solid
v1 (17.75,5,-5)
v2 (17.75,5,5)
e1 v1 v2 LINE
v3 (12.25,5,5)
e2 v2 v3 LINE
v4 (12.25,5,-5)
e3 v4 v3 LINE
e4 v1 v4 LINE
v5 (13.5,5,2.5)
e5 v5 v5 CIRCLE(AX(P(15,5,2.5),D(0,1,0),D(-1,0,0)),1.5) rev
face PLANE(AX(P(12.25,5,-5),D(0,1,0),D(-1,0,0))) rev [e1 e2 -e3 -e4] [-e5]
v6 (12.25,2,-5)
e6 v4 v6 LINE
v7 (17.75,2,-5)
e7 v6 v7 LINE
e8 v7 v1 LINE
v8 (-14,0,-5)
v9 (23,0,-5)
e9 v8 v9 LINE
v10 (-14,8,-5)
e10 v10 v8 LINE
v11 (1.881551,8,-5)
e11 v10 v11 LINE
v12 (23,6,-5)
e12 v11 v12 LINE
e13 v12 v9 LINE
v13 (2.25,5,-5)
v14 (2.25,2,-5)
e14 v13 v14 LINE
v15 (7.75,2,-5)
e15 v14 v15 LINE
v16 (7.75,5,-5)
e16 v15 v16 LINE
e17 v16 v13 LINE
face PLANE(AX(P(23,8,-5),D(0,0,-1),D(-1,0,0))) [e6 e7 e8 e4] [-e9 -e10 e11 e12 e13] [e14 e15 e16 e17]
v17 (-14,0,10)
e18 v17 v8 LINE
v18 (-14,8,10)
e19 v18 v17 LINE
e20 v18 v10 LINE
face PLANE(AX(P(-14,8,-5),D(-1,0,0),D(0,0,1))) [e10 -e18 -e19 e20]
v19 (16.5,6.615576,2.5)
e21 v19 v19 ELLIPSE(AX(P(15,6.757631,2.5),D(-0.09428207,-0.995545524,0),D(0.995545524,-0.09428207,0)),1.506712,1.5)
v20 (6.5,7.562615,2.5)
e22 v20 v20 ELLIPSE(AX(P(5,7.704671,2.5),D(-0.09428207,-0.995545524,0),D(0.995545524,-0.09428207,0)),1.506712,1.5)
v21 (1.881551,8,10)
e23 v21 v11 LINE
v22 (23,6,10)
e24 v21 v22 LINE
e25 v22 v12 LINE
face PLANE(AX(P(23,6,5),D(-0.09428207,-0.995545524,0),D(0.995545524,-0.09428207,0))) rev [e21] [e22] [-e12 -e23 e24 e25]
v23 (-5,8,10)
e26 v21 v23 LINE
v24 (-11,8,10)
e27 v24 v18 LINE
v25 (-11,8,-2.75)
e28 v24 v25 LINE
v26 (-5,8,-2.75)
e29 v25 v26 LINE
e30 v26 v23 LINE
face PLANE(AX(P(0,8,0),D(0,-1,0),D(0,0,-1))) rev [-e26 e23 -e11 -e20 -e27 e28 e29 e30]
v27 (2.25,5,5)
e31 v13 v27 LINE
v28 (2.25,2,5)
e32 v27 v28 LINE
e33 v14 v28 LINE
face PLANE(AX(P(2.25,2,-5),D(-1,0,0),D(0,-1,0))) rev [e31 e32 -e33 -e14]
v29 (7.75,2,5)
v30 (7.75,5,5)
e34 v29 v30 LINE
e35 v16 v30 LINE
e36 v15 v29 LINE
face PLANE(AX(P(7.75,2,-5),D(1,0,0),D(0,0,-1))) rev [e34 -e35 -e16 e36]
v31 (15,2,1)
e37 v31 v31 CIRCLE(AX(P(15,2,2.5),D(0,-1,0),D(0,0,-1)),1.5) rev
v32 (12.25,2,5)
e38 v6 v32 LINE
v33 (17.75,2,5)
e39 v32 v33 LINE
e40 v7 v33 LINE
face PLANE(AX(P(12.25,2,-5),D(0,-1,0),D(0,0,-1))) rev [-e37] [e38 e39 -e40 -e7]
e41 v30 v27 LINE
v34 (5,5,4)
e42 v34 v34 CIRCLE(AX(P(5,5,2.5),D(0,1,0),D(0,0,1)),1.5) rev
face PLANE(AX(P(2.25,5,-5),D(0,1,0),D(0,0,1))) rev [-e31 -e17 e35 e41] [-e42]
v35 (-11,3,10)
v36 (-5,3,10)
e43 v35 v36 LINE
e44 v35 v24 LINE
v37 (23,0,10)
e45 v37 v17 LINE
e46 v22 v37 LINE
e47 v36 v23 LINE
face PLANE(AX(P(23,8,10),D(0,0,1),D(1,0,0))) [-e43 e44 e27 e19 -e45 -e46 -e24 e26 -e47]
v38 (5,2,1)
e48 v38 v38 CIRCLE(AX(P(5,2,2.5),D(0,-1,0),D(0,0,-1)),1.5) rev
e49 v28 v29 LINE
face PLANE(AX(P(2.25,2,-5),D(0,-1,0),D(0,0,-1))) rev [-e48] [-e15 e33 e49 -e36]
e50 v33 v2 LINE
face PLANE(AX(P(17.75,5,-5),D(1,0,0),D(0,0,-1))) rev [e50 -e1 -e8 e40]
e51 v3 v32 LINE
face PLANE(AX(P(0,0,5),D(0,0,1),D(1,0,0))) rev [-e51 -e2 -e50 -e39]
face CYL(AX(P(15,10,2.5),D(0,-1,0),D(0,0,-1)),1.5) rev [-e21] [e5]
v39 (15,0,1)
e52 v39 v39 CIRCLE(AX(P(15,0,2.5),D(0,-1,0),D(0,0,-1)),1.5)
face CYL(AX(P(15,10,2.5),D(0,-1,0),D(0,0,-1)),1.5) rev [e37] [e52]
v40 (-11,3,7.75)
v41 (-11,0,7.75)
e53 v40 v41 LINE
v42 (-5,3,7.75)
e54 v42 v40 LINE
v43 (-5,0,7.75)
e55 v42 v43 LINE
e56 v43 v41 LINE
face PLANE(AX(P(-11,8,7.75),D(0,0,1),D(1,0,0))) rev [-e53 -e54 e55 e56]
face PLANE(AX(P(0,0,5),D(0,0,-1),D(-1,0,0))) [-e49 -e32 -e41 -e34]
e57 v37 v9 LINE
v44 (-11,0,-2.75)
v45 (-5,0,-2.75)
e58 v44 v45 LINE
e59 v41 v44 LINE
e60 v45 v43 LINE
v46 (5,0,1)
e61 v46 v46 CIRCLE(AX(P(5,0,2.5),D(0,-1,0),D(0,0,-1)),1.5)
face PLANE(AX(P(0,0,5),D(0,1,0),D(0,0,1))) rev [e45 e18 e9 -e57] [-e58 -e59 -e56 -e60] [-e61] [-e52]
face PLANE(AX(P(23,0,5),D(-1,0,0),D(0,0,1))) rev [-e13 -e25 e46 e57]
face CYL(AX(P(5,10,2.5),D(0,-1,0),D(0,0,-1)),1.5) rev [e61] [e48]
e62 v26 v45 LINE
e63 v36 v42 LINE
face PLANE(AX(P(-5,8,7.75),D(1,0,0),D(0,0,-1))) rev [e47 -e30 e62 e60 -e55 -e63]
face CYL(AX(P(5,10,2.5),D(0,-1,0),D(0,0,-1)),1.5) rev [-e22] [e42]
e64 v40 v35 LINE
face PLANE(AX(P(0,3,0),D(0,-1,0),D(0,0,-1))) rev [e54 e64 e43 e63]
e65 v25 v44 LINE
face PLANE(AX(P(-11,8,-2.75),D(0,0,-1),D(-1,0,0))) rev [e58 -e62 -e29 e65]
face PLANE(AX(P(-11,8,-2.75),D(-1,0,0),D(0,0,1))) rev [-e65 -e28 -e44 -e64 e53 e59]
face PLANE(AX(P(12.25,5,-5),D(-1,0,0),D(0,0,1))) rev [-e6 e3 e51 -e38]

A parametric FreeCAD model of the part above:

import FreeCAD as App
import Part
import Sketcher

V = App.Vector
Q = App.Units.Quantity

doc = App.newDocument("Part")
body = doc.addObject("PartDesign::Body", "Body")

sketch1 = doc.addObject("Sketcher::SketchObject", "Sketch")
body.addObject(sketch1)
sketch1.AttachmentSupport = (doc.XY_Plane, [""])
sketch1.MapMode = "FlatFace"
sketch1.addGeometry(Part.LineSegment(V(0, 8.17819, 0), V(0, 0, 0)), False)
sketch1.addGeometry(Part.LineSegment(V(0, 0, 0), V(23, 0, 0)), False)
sketch1.addGeometry(Part.LineSegment(V(23, 0, 0), V(23, 6, 0)), False)
sketch1.addGeometry(Part.LineSegment(V(23, 6, 0), V(0, 8.17819, 0)), False)
sketch1.addConstraint(Sketcher.Constraint("Coincident", 0, 2, 1, 1))
sketch1.addConstraint(Sketcher.Constraint("Coincident", 1, 2, 2, 1))
sketch1.addConstraint(Sketcher.Constraint("Coincident", 2, 2, 3, 1))
sketch1.addConstraint(Sketcher.Constraint("Coincident", 3, 2, 0, 1))
sketch1.addConstraint(Sketcher.Constraint("Vertical", 0))
sketch1.addConstraint(Sketcher.Constraint("Horizontal", 1))
sketch1.addConstraint(Sketcher.Constraint("Vertical", 2))
sketch1.addConstraint(Sketcher.Constraint("Coincident", 0, 2, -1, 1))
sketch1.addConstraint(Sketcher.Constraint("DistanceX", 1, 1, 1, 2, 23.0))
sketch1.addConstraint(Sketcher.Constraint("DistanceY", 2, 1, 2, 2, 6.0))
sketch1.addConstraint(Sketcher.Constraint("Angle", 3, Q("174.59 deg")))
pad1 = doc.addObject("PartDesign::Pad", "Pad")
body.addObject(pad1)
pad1.Profile = sketch1
pad1.Length = 5

sketch2 = doc.addObject("Sketcher::SketchObject", "Sketch001")
body.addObject(sketch2)
sketch2.AttachmentSupport = (doc.XZ_Plane, [""])
sketch2.MapMode = "FlatFace"
sketch2.addGeometry(Part.Circle(V(15, 2.5, 0), V(0, 0, 1), 1.5), False)
sketch2.addGeometry(Part.Circle(V(5, 2.5, 0), V(0, 0, 1), 1.5), False)
sketch2.addConstraint(Sketcher.Constraint("Equal", 0, 1))
sketch2.addConstraint(Sketcher.Constraint("Horizontal", 0, 3, 1, 3))
sketch2.addConstraint(Sketcher.Constraint("Diameter", 0, 3.0))
sketch2.addConstraint(Sketcher.Constraint("DistanceX", -1, 1, 0, 3, 15.0))
sketch2.addConstraint(Sketcher.Constraint("DistanceX", -1, 1, 1, 3, 5.0))
sketch2.addConstraint(Sketcher.Constraint("DistanceY", -1, 1, 0, 3, 2.5))
pocket1 = doc.addObject("PartDesign::Pocket", "Pocket")
body.addObject(pocket1)
pocket1.Profile = sketch2
pocket1.Length = 10

sketch3 = doc.addObject("Sketcher::SketchObject", "Sketch002")
body.addObject(sketch3)
sketch3.AttachmentSupport = (doc.XZ_Plane, [""])
sketch3.MapMode = "FlatFace"
sketch3.addGeometry(Part.LineSegment(V(0, 5, 0), V(23, 5, 0)), False)
sketch3.addGeometry(Part.LineSegment(V(23, 5, 0), V(23, 10, 0)), False)
sketch3.addGeometry(Part.LineSegment(V(23, 10, 0), V(-14, 10, 0)), False)
sketch3.addGeometry(Part.LineSegment(V(-14, 10, 0), V(-14, -5, 0)), False)
sketch3.addGeometry(Part.LineSegment(V(-14, -5, 0), V(23, -5, 0)), False)
sketch3.addGeometry(Part.LineSegment(V(23, -5, 0), V(23, 0, 0)), False)
sketch3.addGeometry(Part.LineSegment(V(23, 0, 0), V(0, 0, 0)), False)
sketch3.addGeometry(Part.LineSegment(V(0, 0, 0), V(0, 5, 0)), False)
sketch3.addGeometry(Part.LineSegment(V(-11, 7.75, 0), V(-5, 7.75, 0)), False)
sketch3.addGeometry(Part.LineSegment(V(-5, 7.75, 0), V(-5, -2.75, 0)), False)
sketch3.addGeometry(Part.LineSegment(V(-5, -2.75, 0), V(-11, -2.75, 0)), False)
sketch3.addGeometry(Part.LineSegment(V(-11, -2.75, 0), V(-11, 7.75, 0)), False)
sketch3.addConstraint(Sketcher.Constraint("Coincident", 0, 2, 1, 1))
sketch3.addConstraint(Sketcher.Constraint("Coincident", 1, 2, 2, 1))
sketch3.addConstraint(Sketcher.Constraint("Coincident", 2, 2, 3, 1))
sketch3.addConstraint(Sketcher.Constraint("Coincident", 3, 2, 4, 1))
sketch3.addConstraint(Sketcher.Constraint("Coincident", 4, 2, 5, 1))
sketch3.addConstraint(Sketcher.Constraint("Coincident", 5, 2, 6, 1))
sketch3.addConstraint(Sketcher.Constraint("Coincident", 6, 2, 7, 1))
sketch3.addConstraint(Sketcher.Constraint("Coincident", 7, 2, 0, 1))
sketch3.addConstraint(Sketcher.Constraint("Coincident", 8, 2, 9, 1))
sketch3.addConstraint(Sketcher.Constraint("Coincident", 9, 2, 10, 1))
sketch3.addConstraint(Sketcher.Constraint("Coincident", 10, 2, 11, 1))
sketch3.addConstraint(Sketcher.Constraint("Coincident", 11, 2, 8, 1))
sketch3.addConstraint(Sketcher.Constraint("Horizontal", 0))
sketch3.addConstraint(Sketcher.Constraint("Vertical", 1))
sketch3.addConstraint(Sketcher.Constraint("Horizontal", 2))
sketch3.addConstraint(Sketcher.Constraint("Vertical", 3))
sketch3.addConstraint(Sketcher.Constraint("Horizontal", 4))
sketch3.addConstraint(Sketcher.Constraint("Vertical", 5))
sketch3.addConstraint(Sketcher.Constraint("Horizontal", 6))
sketch3.addConstraint(Sketcher.Constraint("Vertical", 7))
sketch3.addConstraint(Sketcher.Constraint("Horizontal", 8))
sketch3.addConstraint(Sketcher.Constraint("Vertical", 9))
sketch3.addConstraint(Sketcher.Constraint("Horizontal", 10))
sketch3.addConstraint(Sketcher.Constraint("Vertical", 11))
sketch3.addConstraint(Sketcher.Constraint("Coincident", 6, 2, -1, 1))
sketch3.addConstraint(Sketcher.Constraint("Symmetric", 0, 2, 4, 2, -1))
sketch3.addConstraint(Sketcher.Constraint("Equal", 1, 5))
sketch3.addConstraint(Sketcher.Constraint("DistanceX", 0, 1, 0, 2, 23.0))
sketch3.addConstraint(Sketcher.Constraint("DistanceX", 2, 2, 2, 1, 37.0))
sketch3.addConstraint(Sketcher.Constraint("DistanceX", 8, 1, 8, 2, 6.0))
sketch3.addConstraint(Sketcher.Constraint("DistanceY", 1, 1, 1, 2, 5.0))
sketch3.addConstraint(Sketcher.Constraint("DistanceY", 9, 2, 9, 1, 10.5))
sketch3.addConstraint(Sketcher.Constraint("DistanceX", 8, 2, -1, 1, 5.0))
sketch3.addConstraint(Sketcher.Constraint("DistanceY", -1, 1, 8, 2, 7.75))
pad2 = doc.addObject("PartDesign::Pad", "Pad001")
body.addObject(pad2)
pad2.Profile = sketch3
pad2.Length = 8
pad2.Reversed = True

sketch4 = doc.addObject("Sketcher::SketchObject", "Sketch003")
body.addObject(sketch4)
sketch4.AttachmentSupport = (doc.XY_Plane, [""])
sketch4.MapMode = "FlatFace"
sketch4.AttachmentOffset = App.Placement(V(0, 0, 5), App.Rotation())
sketch4.addGeometry(Part.LineSegment(V(2.25, 5, 0), V(2.25, 2, 0)), False)
sketch4.addGeometry(Part.LineSegment(V(2.25, 2, 0), V(7.75, 2, 0)), False)
sketch4.addGeometry(Part.LineSegment(V(7.75, 2, 0), V(7.75, 5, 0)), False)
sketch4.addGeometry(Part.LineSegment(V(7.75, 5, 0), V(2.25, 5, 0)), False)
sketch4.addGeometry(Part.LineSegment(V(12.25, 5, 0), V(12.25, 2, 0)), False)
sketch4.addGeometry(Part.LineSegment(V(12.25, 2, 0), V(17.75, 2, 0)), False)
sketch4.addGeometry(Part.LineSegment(V(17.75, 2, 0), V(17.75, 5, 0)), False)
sketch4.addGeometry(Part.LineSegment(V(17.75, 5, 0), V(12.25, 5, 0)), False)
sketch4.addConstraint(Sketcher.Constraint("Coincident", 0, 2, 1, 1))
sketch4.addConstraint(Sketcher.Constraint("Coincident", 1, 2, 2, 1))
sketch4.addConstraint(Sketcher.Constraint("Coincident", 2, 2, 3, 1))
sketch4.addConstraint(Sketcher.Constraint("Coincident", 3, 2, 0, 1))
sketch4.addConstraint(Sketcher.Constraint("Coincident", 4, 2, 5, 1))
sketch4.addConstraint(Sketcher.Constraint("Coincident", 5, 2, 6, 1))
sketch4.addConstraint(Sketcher.Constraint("Coincident", 6, 2, 7, 1))
sketch4.addConstraint(Sketcher.Constraint("Coincident", 7, 2, 4, 1))
sketch4.addConstraint(Sketcher.Constraint("Vertical", 0))
sketch4.addConstraint(Sketcher.Constraint("Horizontal", 1))
sketch4.addConstraint(Sketcher.Constraint("Vertical", 2))
sketch4.addConstraint(Sketcher.Constraint("Horizontal", 3))
sketch4.addConstraint(Sketcher.Constraint("Vertical", 4))
sketch4.addConstraint(Sketcher.Constraint("Horizontal", 5))
sketch4.addConstraint(Sketcher.Constraint("Vertical", 6))
sketch4.addConstraint(Sketcher.Constraint("Horizontal", 7))
sketch4.addConstraint(Sketcher.Constraint("Horizontal", 1, 2, 4, 2))
sketch4.addConstraint(Sketcher.Constraint("Horizontal", 3, 2, 6, 2))
sketch4.addConstraint(Sketcher.Constraint("Equal", 3, 5))
sketch4.addConstraint(Sketcher.Constraint("DistanceY", 0, 2, 0, 1, 3.0))
sketch4.addConstraint(Sketcher.Constraint("DistanceX", 1, 1, 1, 2, 5.5))
sketch4.addConstraint(Sketcher.Constraint("DistanceY", -1, 1, 0, 2, 2.0))
sketch4.addConstraint(Sketcher.Constraint("DistanceX", 0, 2, 4, 2, 10.0))
sketch4.addConstraint(Sketcher.Constraint("DistanceX", -1, 1, 0, 2, 2.25))
pocket2 = doc.addObject("PartDesign::Pocket", "Pocket001")
body.addObject(pocket2)
pocket2.Profile = sketch4
pocket2.Type = "ThroughAll"

sketch5 = doc.addObject("Sketcher::SketchObject", "Sketch004")
body.addObject(sketch5)
sketch5.AttachmentSupport = (doc.XY_Plane, [""])
sketch5.MapMode = "FlatFace"
sketch5.AttachmentOffset = App.Placement(V(0, 0, 5), App.Rotation())
sketch5.addGeometry(Part.LineSegment(V(23, 8, 0), V(1.881551, 8, 0)), False)
sketch5.addGeometry(Part.LineSegment(V(1.881551, 8, 0), V(23, 6, 0)), False)
sketch5.addGeometry(Part.LineSegment(V(23, 6, 0), V(23, 8, 0)), False)
sketch5.addGeometry(Part.LineSegment(V(1.881551, 8, 0), V(0, 8.17819, 0)), False)
sketch5.addGeometry(Part.LineSegment(V(0, 8.17819, 0), V(0, 8, 0)), False)
sketch5.addGeometry(Part.LineSegment(V(0, 8, 0), V(1.881551, 8, 0)), False)
sketch5.addConstraint(Sketcher.Constraint("Coincident", 0, 2, 1, 1))
sketch5.addConstraint(Sketcher.Constraint("Coincident", 1, 2, 2, 1))
sketch5.addConstraint(Sketcher.Constraint("Coincident", 2, 2, 0, 1))
sketch5.addConstraint(Sketcher.Constraint("Coincident", 3, 2, 4, 1))
sketch5.addConstraint(Sketcher.Constraint("Coincident", 4, 2, 5, 1))
sketch5.addConstraint(Sketcher.Constraint("Coincident", 5, 2, 3, 1))
sketch5.addConstraint(Sketcher.Constraint("Horizontal", 0))
sketch5.addConstraint(Sketcher.Constraint("Vertical", 2))
sketch5.addConstraint(Sketcher.Constraint("Vertical", 4))
sketch5.addConstraint(Sketcher.Constraint("Horizontal", 5))
sketch5.addConstraint(Sketcher.Constraint("Coincident", 5, 2, 0, 2))
sketch5.addConstraint(Sketcher.Constraint("PointOnObject", 3, 2, -2))
sketch5.addConstraint(Sketcher.Constraint("Parallel", 1, 3))
sketch5.addConstraint(Sketcher.Constraint("DistanceY", 2, 1, 2, 2, 2.0))
sketch5.addConstraint(Sketcher.Constraint("DistanceY", -1, 1, 0, 2, 8.0))
sketch5.addConstraint(Sketcher.Constraint("DistanceX", -1, 1, 1, 2, 23.0))
sketch5.addConstraint(Sketcher.Constraint("Angle", 1, Q("-5.41 deg")))
pocket3 = doc.addObject("PartDesign::Pocket", "Pocket002")
body.addObject(pocket3)
pocket3.Profile = sketch5
pocket3.Type = "ThroughAll"
pocket3.Midplane = True

sketch6 = doc.addObject("Sketcher::SketchObject", "Sketch005")
body.addObject(sketch6)
sketch6.AttachmentSupport = (doc.XZ_Plane, [""])
sketch6.MapMode = "FlatFace"
sketch6.AttachmentOffset = App.Placement(V(0, 0, -8), App.Rotation())
sketch6.addGeometry(Part.LineSegment(V(-11, 7.75, 0), V(-11, 10, 0)), False)
sketch6.addGeometry(Part.LineSegment(V(-11, 10, 0), V(-5, 10, 0)), False)
sketch6.addGeometry(Part.LineSegment(V(-5, 10, 0), V(-5, 7.75, 0)), False)
sketch6.addGeometry(Part.LineSegment(V(-5, 7.75, 0), V(-11, 7.75, 0)), False)
sketch6.addConstraint(Sketcher.Constraint("Coincident", 0, 2, 1, 1))
sketch6.addConstraint(Sketcher.Constraint("Coincident", 1, 2, 2, 1))
sketch6.addConstraint(Sketcher.Constraint("Coincident", 2, 2, 3, 1))
sketch6.addConstraint(Sketcher.Constraint("Coincident", 3, 2, 0, 1))
sketch6.addConstraint(Sketcher.Constraint("Vertical", 0))
sketch6.addConstraint(Sketcher.Constraint("Horizontal", 1))
sketch6.addConstraint(Sketcher.Constraint("Vertical", 2))
sketch6.addConstraint(Sketcher.Constraint("Horizontal", 3))
sketch6.addConstraint(Sketcher.Constraint("DistanceX", 1, 1, 1, 2, 6.0))
sketch6.addConstraint(Sketcher.Constraint("DistanceX", 0, 2, -1, 1, 11.0))
sketch6.addConstraint(Sketcher.Constraint("DistanceY", -1, 1, 0, 2, 10.0))
sketch6.addConstraint(Sketcher.Constraint("DistanceY", 0, 1, 0, 2, 2.25))
pocket4 = doc.addObject("PartDesign::Pocket", "Pocket003")
body.addObject(pocket4)
pocket4.Profile = sketch6
pocket4.Length = 5
pocket4.Reversed = True

doc.recompute()
